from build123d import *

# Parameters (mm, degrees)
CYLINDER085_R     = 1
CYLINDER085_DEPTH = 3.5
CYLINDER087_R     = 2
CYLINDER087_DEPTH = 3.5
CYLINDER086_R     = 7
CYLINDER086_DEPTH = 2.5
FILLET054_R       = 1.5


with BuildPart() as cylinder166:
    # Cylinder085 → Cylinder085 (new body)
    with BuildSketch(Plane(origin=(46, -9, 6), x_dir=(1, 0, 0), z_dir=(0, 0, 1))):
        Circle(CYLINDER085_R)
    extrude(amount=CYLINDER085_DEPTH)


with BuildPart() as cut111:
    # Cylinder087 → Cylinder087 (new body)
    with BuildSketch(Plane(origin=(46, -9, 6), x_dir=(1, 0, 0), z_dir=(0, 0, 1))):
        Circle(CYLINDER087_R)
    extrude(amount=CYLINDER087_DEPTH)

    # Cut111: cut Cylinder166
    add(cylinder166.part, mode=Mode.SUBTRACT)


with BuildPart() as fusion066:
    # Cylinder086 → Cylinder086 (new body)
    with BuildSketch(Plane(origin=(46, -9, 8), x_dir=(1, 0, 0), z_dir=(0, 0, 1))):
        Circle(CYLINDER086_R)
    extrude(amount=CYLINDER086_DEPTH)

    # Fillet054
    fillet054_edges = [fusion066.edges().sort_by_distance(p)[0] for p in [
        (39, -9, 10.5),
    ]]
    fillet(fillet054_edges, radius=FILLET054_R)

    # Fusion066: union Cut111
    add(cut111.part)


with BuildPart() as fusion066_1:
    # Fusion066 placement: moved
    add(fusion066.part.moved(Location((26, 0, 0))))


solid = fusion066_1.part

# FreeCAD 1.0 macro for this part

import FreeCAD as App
import Part
import Sketcher
Q = App.Units.Quantity


def edges_at(feature, points):
    """Names of the edges that pass closest to the given points."""
    edges = feature.Shape.Edges
    near = lambda p: min(range(len(edges)), key=lambda i: edges[i].distToShape(Part.Vertex(*p))[0])
    return sorted({f"Edge{near(p) + 1}" for p in points})

doc = App.newDocument("Part")
body = doc.addObject("PartDesign::Body", "Body")

sketch1 = body.newObject("Sketcher::SketchObject", "Sketch")
sketch1.AttachmentSupport = (doc.getObject("XY_Plane"), [""])
sketch1.MapMode = "FlatFace"
sketch1.AttachmentOffset = App.Placement(App.Vector(0, 0, 6), App.Rotation())
sketch1.addGeometry(Part.Circle(App.Vector(46, -9, 0), App.Vector(0, 0, 1), 1), False)
sketch1.addConstraint([
    Sketcher.Constraint("Diameter", 0, Q("2 mm")),
    Sketcher.Constraint("DistanceX", -1, 1, 0, 3, Q("46 mm")),
    Sketcher.Constraint("DistanceY", 0, 3, -1, 1, Q("9 mm")),
])
pad1 = body.newObject("PartDesign::Pad", "Pad")
pad1.Profile = sketch1
pad1.Length = 3.5
body2 = doc.addObject("PartDesign::Body", "Body001")

sketch2 = body2.newObject("Sketcher::SketchObject", "Sketch001")
sketch2.AttachmentSupport = (doc.getObject("XY_Plane001"), [""])
sketch2.MapMode = "FlatFace"
sketch2.AttachmentOffset = App.Placement(App.Vector(0, 0, 6), App.Rotation())
sketch2.addGeometry(Part.Circle(App.Vector(46, -9, 0), App.Vector(0, 0, 1), 2), False)
sketch2.addConstraint([
    Sketcher.Constraint("Diameter", 0, Q("4 mm")),
    Sketcher.Constraint("DistanceX", -1, 1, 0, 3, Q("46 mm")),
    Sketcher.Constraint("DistanceY", 0, 3, -1, 1, Q("9 mm")),
])
pad2 = body2.newObject("PartDesign::Pad", "Pad001")
pad2.Profile = sketch2
pad2.Length = 3.5
doc.recompute()

boolean = body2.newObject("PartDesign::Boolean", "Boolean")
boolean.Type = "Cut"
boolean.addObjects([body])
body3 = doc.addObject("PartDesign::Body", "Body002")

sketch3 = body3.newObject("Sketcher::SketchObject", "Sketch002")
sketch3.AttachmentSupport = (doc.getObject("XY_Plane002"), [""])
sketch3.MapMode = "FlatFace"
sketch3.AttachmentOffset = App.Placement(App.Vector(0, 0, 8), App.Rotation())
sketch3.addGeometry(Part.Circle(App.Vector(46, -9, 0), App.Vector(0, 0, 1), 7), False)
sketch3.addConstraint([
    Sketcher.Constraint("Diameter", 0, Q("14 mm")),
    Sketcher.Constraint("DistanceX", -1, 1, 0, 3, Q("46 mm")),
    Sketcher.Constraint("DistanceY", 0, 3, -1, 1, Q("9 mm")),
])
pad3 = body3.newObject("PartDesign::Pad", "Pad002")
pad3.Profile = sketch3
pad3.Length = 2.5
doc.recompute()

fillet = body3.newObject("PartDesign::Fillet", "Fillet")
fillet.Base = (pad3, edges_at(pad3, [(39, -9, 10.5)]))
fillet.Radius = 1.5
doc.recompute()

boolean2 = body3.newObject("PartDesign::Boolean", "Boolean001")
boolean2.Type = "Fuse"
boolean2.addObjects([body2])
body4 = doc.addObject("PartDesign::Body", "Body003")
doc.recompute()

body3.Placement = App.Placement(App.Vector(26, 0, 0), App.Rotation(App.Vector(0, 0, 1), 0))
boolean3 = body4.newObject("PartDesign::Boolean", "Boolean002")
boolean3.Type = "Fuse"
boolean3.addObjects([body3])

doc.recompute()
